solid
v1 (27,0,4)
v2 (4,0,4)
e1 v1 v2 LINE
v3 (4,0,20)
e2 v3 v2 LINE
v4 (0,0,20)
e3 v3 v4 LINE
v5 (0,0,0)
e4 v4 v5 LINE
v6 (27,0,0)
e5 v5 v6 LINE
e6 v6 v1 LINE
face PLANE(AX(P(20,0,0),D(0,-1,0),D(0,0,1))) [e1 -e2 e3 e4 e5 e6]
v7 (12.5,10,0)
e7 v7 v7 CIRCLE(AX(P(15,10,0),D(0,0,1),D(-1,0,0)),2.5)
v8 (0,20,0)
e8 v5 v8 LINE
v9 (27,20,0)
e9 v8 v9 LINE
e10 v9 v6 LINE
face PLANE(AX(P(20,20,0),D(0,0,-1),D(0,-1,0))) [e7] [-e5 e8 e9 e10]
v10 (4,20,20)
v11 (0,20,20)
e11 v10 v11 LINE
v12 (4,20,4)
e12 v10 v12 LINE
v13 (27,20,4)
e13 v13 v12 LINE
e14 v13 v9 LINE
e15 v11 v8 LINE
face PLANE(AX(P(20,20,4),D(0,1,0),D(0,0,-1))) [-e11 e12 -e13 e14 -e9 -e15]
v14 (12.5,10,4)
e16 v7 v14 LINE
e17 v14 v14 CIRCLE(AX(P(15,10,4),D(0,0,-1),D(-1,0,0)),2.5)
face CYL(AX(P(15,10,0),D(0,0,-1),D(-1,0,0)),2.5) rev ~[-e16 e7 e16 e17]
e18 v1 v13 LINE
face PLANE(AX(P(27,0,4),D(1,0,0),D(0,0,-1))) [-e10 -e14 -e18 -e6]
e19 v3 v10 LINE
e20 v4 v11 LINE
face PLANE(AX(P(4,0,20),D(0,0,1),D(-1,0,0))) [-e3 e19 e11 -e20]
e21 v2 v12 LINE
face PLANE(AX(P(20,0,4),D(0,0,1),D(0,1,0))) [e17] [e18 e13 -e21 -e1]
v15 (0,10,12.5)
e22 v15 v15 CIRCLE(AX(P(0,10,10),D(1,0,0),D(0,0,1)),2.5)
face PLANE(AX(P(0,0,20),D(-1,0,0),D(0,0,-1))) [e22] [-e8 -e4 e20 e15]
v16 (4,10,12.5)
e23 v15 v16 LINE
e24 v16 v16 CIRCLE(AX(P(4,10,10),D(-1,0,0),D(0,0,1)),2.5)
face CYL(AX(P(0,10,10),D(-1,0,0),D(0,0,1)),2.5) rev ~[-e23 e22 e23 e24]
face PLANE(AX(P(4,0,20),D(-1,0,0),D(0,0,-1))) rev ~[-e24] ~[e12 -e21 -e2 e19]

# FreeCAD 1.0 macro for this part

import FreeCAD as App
import Part
import Sketcher

doc = App.newDocument("Part")
params = doc.addObject("Spreadsheet::Sheet", "Params")
for row, (alias, value) in enumerate([
    ("sketch1_width", "20 mm"),
    ("sketch1_width2", "16 mm"),
    ("pad1_length", "20 mm"),
    ("sketch2_diameter", "5 mm"),
    ("pocket1_length", "20 mm"),
    ("sketch3_diameter", "5 mm"),
    ("pocket2_length", "20 mm"),
    ("sketch4_width", "20 mm"),
    ("sketch4_height", "4 mm"),
    ("pad2_length", "7 mm"),
], start=1):
    params.set(f"A{row}", alias)
    params.set(f"B{row}", "=" + value)
    params.setAlias(f"B{row}", alias)

body = doc.addObject("PartDesign::Body", "Body")

# Sketch on XZ plane
sketch1 = body.newObject("Sketcher::SketchObject", "Sketch")
sketch1.AttachmentSupport = (doc.getObject("XZ_Plane"), [""])
sketch1.MapMode = "FlatFace"
sketch1.addGeometry(Part.LineSegment(App.Vector(20, 0, 0), App.Vector(0, 0, 0)), False)
sketch1.addGeometry(Part.LineSegment(App.Vector(0, 0, 0), App.Vector(0, 20, 0)), False)
sketch1.addGeometry(Part.LineSegment(App.Vector(0, 20, 0), App.Vector(4, 20, 0)), False)
sketch1.addGeometry(Part.LineSegment(App.Vector(4, 20, 0), App.Vector(4, 4, 0)), False)
sketch1.addGeometry(Part.LineSegment(App.Vector(4, 4, 0), App.Vector(20, 4, 0)), False)
sketch1.addGeometry(Part.LineSegment(App.Vector(20, 4, 0), App.Vector(20, 0, 0)), False)
sketch1.addConstraint(Sketcher.Constraint("Coincident", 0, 2, 1, 1))
sketch1.addConstraint(Sketcher.Constraint("Coincident", 1, 2, 2, 1))
sketch1.addConstraint(Sketcher.Constraint("Coincident", 2, 2, 3, 1))
sketch1.addConstraint(Sketcher.Constraint("Coincident", 3, 2, 4, 1))
sketch1.addConstraint(Sketcher.Constraint("Coincident", 4, 2, 5, 1))
sketch1.addConstraint(Sketcher.Constraint("Coincident", 5, 2, 0, 1))
sketch1.addConstraint(Sketcher.Constraint("Horizontal", 0))
sketch1.addConstraint(Sketcher.Constraint("Vertical", 1))
sketch1.addConstraint(Sketcher.Constraint("Horizontal", 2))
sketch1.addConstraint(Sketcher.Constraint("Vertical", 3))
sketch1.addConstraint(Sketcher.Constraint("Horizontal", 4))
sketch1.addConstraint(Sketcher.Constraint("Vertical", 5))
sketch1.addConstraint(Sketcher.Constraint("Coincident", 0, 2, -1, 1))
sketch1.addConstraint(Sketcher.Constraint("Equal", 0, 1))
sketch1.addConstraint(Sketcher.Constraint("Equal", 4, 3))
sketch1.addConstraint(Sketcher.Constraint("DistanceX", 0, 2, 0, 1, 20.0))
sketch1.addConstraint(Sketcher.Constraint("DistanceX", 4, 1, 4, 2, 16.0))
sketch1.setExpression("Constraints[15]", "Params.sketch1_width")
sketch1.setExpression("Constraints[16]", "Params.sketch1_width2")
pad1 = body.newObject("PartDesign::Pad", "Pad")
pad1.Profile = sketch1
pad1.setExpression("Length", "Params.pad1_length")
pad1.Reversed = True

# Sketch on YZ plane
sketch2 = body.newObject("Sketcher::SketchObject", "Sketch001")
sketch2.AttachmentSupport = (doc.getObject("YZ_Plane"), [""])
sketch2.MapMode = "FlatFace"
sketch2.addGeometry(Part.Circle(App.Vector(10, 10, 0), App.Vector(0, 0, 1), 2.5), False)
sketch2.addConstraint(Sketcher.Constraint("Diameter", 0, 5.0))
sketch2.addConstraint(Sketcher.Constraint("DistanceX", -1, 1, 0, 3, 10.0))
sketch2.addConstraint(Sketcher.Constraint("DistanceY", -1, 1, 0, 3, 10.0))
sketch2.setExpression("Constraints[0]", "Params.sketch2_diameter")
pocket1 = body.newObject("PartDesign::Pocket", "Pocket")
pocket1.Profile = sketch2
pocket1.setExpression("Length", "Params.pocket1_length")
pocket1.Reversed = True

# Sketch on XY plane
sketch3 = body.newObject("Sketcher::SketchObject", "Sketch002")
sketch3.AttachmentSupport = (doc.getObject("XY_Plane"), [""])
sketch3.MapMode = "FlatFace"
sketch3.addGeometry(Part.Circle(App.Vector(15, 10, 0), App.Vector(0, 0, 1), 2.5), False)
sketch3.addConstraint(Sketcher.Constraint("Diameter", 0, 5.0))
sketch3.addConstraint(Sketcher.Constraint("DistanceY", -1, 1, 0, 3, 10.0))
sketch3.addConstraint(Sketcher.Constraint("DistanceX", -1, 1, 0, 3, 15.0))
sketch3.setExpression("Constraints[0]", "Params.sketch3_diameter")
pocket2 = body.newObject("PartDesign::Pocket", "Pocket001")
pocket2.Profile = sketch3
pocket2.setExpression("Length", "Params.pocket2_length")
pocket2.Reversed = True

# Sketch on YZ plane
sketch4 = body.newObject("Sketcher::SketchObject", "Sketch003")
sketch4.AttachmentSupport = (doc.getObject("YZ_Plane"), [""])
sketch4.MapMode = "FlatFace"
sketch4.AttachmentOffset = App.Placement(App.Vector(0, 0, 20), App.Rotation())
sketch4.addGeometry(Part.LineSegment(App.Vector(0, 4, 0), App.Vector(0, 0, 0)), False)
sketch4.addGeometry(Part.LineSegment(App.Vector(0, 0, 0), App.Vector(20, 0, 0)), False)
sketch4.addGeometry(Part.LineSegment(App.Vector(20, 0, 0), App.Vector(20, 4, 0)), False)
sketch4.addGeometry(Part.LineSegment(App.Vector(20, 4, 0), App.Vector(0, 4, 0)), False)
sketch4.addConstraint(Sketcher.Constraint("Coincident", 0, 2, 1, 1))
sketch4.addConstraint(Sketcher.Constraint("Coincident", 1, 2, 2, 1))
sketch4.addConstraint(Sketcher.Constraint("Coincident", 2, 2, 3, 1))
sketch4.addConstraint(Sketcher.Constraint("Coincident", 3, 2, 0, 1))
sketch4.addConstraint(Sketcher.Constraint("Vertical", 0))
sketch4.addConstraint(Sketcher.Constraint("Horizontal", 1))
sketch4.addConstraint(Sketcher.Constraint("Vertical", 2))
sketch4.addConstraint(Sketcher.Constraint("Horizontal", 3))
sketch4.addConstraint(Sketcher.Constraint("Coincident", 0, 2, -1, 1))
sketch4.addConstraint(Sketcher.Constraint("DistanceX", 1, 1, 1, 2, 20.0))
sketch4.addConstraint(Sketcher.Constraint("DistanceY", 0, 2, 0, 1, 4.0))
sketch4.setExpression("Constraints[9]", "Params.sketch4_width")
sketch4.setExpression("Constraints[10]", "Params.sketch4_height")
pad2 = body.newObject("PartDesign::Pad", "Pad001")
pad2.Profile = sketch4
pad2.setExpression("Length", "Params.pad2_length")

doc.recompute()
